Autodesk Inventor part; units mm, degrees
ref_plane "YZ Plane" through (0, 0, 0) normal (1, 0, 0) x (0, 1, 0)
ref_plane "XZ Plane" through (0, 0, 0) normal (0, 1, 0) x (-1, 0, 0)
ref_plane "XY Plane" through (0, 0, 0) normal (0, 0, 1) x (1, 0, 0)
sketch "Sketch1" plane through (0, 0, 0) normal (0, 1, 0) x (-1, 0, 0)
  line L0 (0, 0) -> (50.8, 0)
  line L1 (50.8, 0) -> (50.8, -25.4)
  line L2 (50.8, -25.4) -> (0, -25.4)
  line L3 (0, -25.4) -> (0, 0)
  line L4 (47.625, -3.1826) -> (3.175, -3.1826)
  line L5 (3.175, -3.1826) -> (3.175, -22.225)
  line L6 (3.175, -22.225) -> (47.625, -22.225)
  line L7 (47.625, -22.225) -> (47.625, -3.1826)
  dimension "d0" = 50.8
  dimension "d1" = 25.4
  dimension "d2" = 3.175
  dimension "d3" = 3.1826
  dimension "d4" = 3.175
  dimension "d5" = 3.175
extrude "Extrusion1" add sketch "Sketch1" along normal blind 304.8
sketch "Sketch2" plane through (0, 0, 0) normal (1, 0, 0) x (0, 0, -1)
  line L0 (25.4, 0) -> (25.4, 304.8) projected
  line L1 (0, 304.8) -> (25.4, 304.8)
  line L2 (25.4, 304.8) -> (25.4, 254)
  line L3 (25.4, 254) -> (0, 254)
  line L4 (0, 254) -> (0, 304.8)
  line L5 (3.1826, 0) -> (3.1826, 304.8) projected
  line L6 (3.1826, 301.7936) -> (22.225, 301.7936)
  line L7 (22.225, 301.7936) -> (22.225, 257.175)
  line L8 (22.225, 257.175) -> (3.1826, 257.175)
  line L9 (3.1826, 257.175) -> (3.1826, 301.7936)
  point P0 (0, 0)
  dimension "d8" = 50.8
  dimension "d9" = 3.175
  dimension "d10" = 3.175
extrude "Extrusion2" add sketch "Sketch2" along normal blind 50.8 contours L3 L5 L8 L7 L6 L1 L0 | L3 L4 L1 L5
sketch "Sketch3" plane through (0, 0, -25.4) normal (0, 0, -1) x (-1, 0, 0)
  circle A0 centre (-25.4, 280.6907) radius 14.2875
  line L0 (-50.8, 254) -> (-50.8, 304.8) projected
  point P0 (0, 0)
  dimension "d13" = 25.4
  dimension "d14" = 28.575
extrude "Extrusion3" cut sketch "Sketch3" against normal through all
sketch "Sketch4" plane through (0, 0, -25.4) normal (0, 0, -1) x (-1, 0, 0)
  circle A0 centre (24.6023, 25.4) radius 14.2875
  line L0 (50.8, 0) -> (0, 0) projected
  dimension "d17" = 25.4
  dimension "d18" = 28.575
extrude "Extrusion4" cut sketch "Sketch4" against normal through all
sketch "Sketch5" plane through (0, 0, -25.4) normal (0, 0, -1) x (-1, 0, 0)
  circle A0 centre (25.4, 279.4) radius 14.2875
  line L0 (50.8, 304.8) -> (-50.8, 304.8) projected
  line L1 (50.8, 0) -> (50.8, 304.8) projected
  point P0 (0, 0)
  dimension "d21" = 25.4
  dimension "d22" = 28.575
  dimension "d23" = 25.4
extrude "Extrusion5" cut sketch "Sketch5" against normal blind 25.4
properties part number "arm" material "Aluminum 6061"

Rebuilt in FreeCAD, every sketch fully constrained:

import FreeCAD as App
import Part
import Sketcher

V = App.Vector
Q = App.Units.Quantity


def add_polygon(sketch, points):
    """Adds a closed chain of lines whose ends are joined by coincident constraints."""
    first, n = sketch.GeometryCount, len(points)
    for a, b in zip(points, points[1:] + points[:1]):
        sketch.addGeometry(Part.LineSegment(App.Vector(*a, 0), App.Vector(*b, 0)), False)
    for i in range(n):
        sketch.addConstraint(Sketcher.Constraint("Coincident", first + i, 2, first + (i + 1) % n, 1))

doc = App.newDocument("Part")
body = doc.addObject("PartDesign::Body", "Body")

# Sketch on XZ plane
sketch1 = body.newObject("Sketcher::SketchObject", "Sketch")
sketch1.AttachmentSupport = (doc.getObject("XZ_Plane"), [""])
sketch1.MapMode = "FlatFace"
add_polygon(sketch1, [(-51, 0), (0, 0), (0, -25), (-51, -25)])  # lines 0-3
add_polygon(sketch1, [(-3, -3), (-48, -3), (-48, -22), (-3, -22)])  # lines 4-7
sketch1.addConstraint(Sketcher.Constraint("Horizontal", 0))
sketch1.addConstraint(Sketcher.Constraint("Vertical", 1))
sketch1.addConstraint(Sketcher.Constraint("Horizontal", 2))
sketch1.addConstraint(Sketcher.Constraint("Vertical", 3))
sketch1.addConstraint(Sketcher.Constraint("Horizontal", 4))
sketch1.addConstraint(Sketcher.Constraint("Vertical", 5))
sketch1.addConstraint(Sketcher.Constraint("Horizontal", 6))
sketch1.addConstraint(Sketcher.Constraint("Vertical", 7))
sketch1.addConstraint(Sketcher.Constraint("Coincident", 0, 2, -1, 1))
sketch1.addConstraint(Sketcher.Constraint("DistanceX", 0, 1, 0, 2, Q("2 in")))
sketch1.addConstraint(Sketcher.Constraint("DistanceY", 1, 2, 1, 1, Q("1 in")))
sketch1.addConstraint(Sketcher.Constraint("DistanceX", 6, 2, -1, 1, Q("0.125 in")))
sketch1.addConstraint(Sketcher.Constraint("DistanceX", 3, 2, 4, 2, Q("0.125 in")))
sketch1.addConstraint(Sketcher.Constraint("DistanceY", 2, 2, 5, 2, Q("0.125 in")))
sketch1.addConstraint(Sketcher.Constraint("DistanceY", 4, 2, -1, 1, Q("0.1253 in")))
pad1 = body.newObject("PartDesign::Pad", "Pad")
pad1.Profile = sketch1
pad1.Length = Q("12 in")
pad1.Reversed = True

# Sketch on YZ plane
sketch2 = body.newObject("Sketcher::SketchObject", "Sketch001")
sketch2.AttachmentSupport = (doc.getObject("YZ_Plane"), [""])
sketch2.MapMode = "FlatFace"
add_polygon(sketch2, [(254, -25), (305, -25), (305, 0), (254, 0)])  # lines 0-3
add_polygon(sketch2, [(257, -22), (257, -3), (302, -3), (302, -22)])  # lines 4-7
sketch2.addConstraint(Sketcher.Constraint("Horizontal", 0))
sketch2.addConstraint(Sketcher.Constraint("Vertical", 1))
sketch2.addConstraint(Sketcher.Constraint("Horizontal", 2))
sketch2.addConstraint(Sketcher.Constraint("Vertical", 3))
sketch2.addConstraint(Sketcher.Constraint("Vertical", 4))
sketch2.addConstraint(Sketcher.Constraint("Horizontal", 5))
sketch2.addConstraint(Sketcher.Constraint("Vertical", 6))
sketch2.addConstraint(Sketcher.Constraint("Horizontal", 7))
sketch2.addConstraint(Sketcher.Constraint("PointOnObject", 1, 2, -1))
sketch2.addConstraint(Sketcher.Constraint("DistanceX", 0, 1, 0, 2, Q("2 in")))
sketch2.addConstraint(Sketcher.Constraint("DistanceY", 1, 1, 1, 2, Q("1 in")))
sketch2.addConstraint(Sketcher.Constraint("DistanceX", -1, 1, 0, 2, Q("12 in")))
sketch2.addConstraint(Sketcher.Constraint("DistanceX", 2, 2, 4, 2, Q("0.125 in")))
sketch2.addConstraint(Sketcher.Constraint("DistanceY", 0, 2, 6, 2, Q("0.125 in")))
sketch2.addConstraint(Sketcher.Constraint("DistanceY", 4, 1, 4, 2, Q("0.7497 in")))
sketch2.addConstraint(Sketcher.Constraint("DistanceX", 5, 1, 5, 2, Q("44.6186 mm")))
pad2 = body.newObject("PartDesign::Pad", "Pad001")
pad2.Profile = sketch2
pad2.Length = Q("2 in")

# Sketch on XY plane
sketch3 = body.newObject("Sketcher::SketchObject", "Sketch002")
sketch3.AttachmentSupport = (doc.getObject("XY_Plane"), [""])
sketch3.MapMode = "FlatFace"
sketch3.AttachmentOffset = App.Placement(V(0, 0, -1 * 25.4), App.Rotation())
sketch3.addGeometry(Part.Circle(V(25, 281, 0), V(0, 0, 1), 14), False)
sketch3.addConstraint(Sketcher.Constraint("Diameter", 0, Q("1.125 in")))
sketch3.addConstraint(Sketcher.Constraint("DistanceX", -1, 1, 0, 3, Q("1 in")))
sketch3.addConstraint(Sketcher.Constraint("DistanceY", -1, 1, 0, 3, Q("280.6907 mm")))
pocket1 = body.newObject("PartDesign::Pocket", "Pocket")
pocket1.Profile = sketch3
pocket1.Type = "ThroughAll"
pocket1.Reversed = True

# Sketch on XY plane
sketch4 = body.newObject("Sketcher::SketchObject", "Sketch003")
sketch4.AttachmentSupport = (doc.getObject("XY_Plane"), [""])
sketch4.MapMode = "FlatFace"
sketch4.AttachmentOffset = App.Placement(V(0, 0, -1 * 25.4), App.Rotation())
sketch4.addGeometry(Part.Circle(V(-25, 25, 0), V(0, 0, 1), 14), False)
sketch4.addConstraint(Sketcher.Constraint("Diameter", 0, Q("1.125 in")))
sketch4.addConstraint(Sketcher.Constraint("DistanceY", -1, 1, 0, 3, Q("1 in")))
sketch4.addConstraint(Sketcher.Constraint("DistanceX", 0, 3, -1, 1, Q("0.9686 in")))
pocket2 = body.newObject("PartDesign::Pocket", "Pocket001")
pocket2.Profile = sketch4
pocket2.Type = "ThroughAll"
pocket2.Reversed = True

# Sketch on XY plane
sketch5 = body.newObject("Sketcher::SketchObject", "Sketch004")
sketch5.AttachmentSupport = (doc.getObject("XY_Plane"), [""])
sketch5.MapMode = "FlatFace"
sketch5.AttachmentOffset = App.Placement(V(0, 0, -1 * 25.4), App.Rotation())
sketch5.addGeometry(Part.Circle(V(-25, 279, 0), V(0, 0, 1), 14), False)
sketch5.addConstraint(Sketcher.Constraint("Diameter", 0, Q("1.125 in")))
sketch5.addConstraint(Sketcher.Constraint("DistanceX", 0, 3, -1, 1, Q("1 in")))
sketch5.addConstraint(Sketcher.Constraint("DistanceY", -1, 1, 0, 3, Q("11 in")))
pocket3 = body.newObject("PartDesign::Pocket", "Pocket002")
pocket3.Profile = sketch5
pocket3.Length = Q("1 in")
pocket3.Reversed = True

doc.recompute()
